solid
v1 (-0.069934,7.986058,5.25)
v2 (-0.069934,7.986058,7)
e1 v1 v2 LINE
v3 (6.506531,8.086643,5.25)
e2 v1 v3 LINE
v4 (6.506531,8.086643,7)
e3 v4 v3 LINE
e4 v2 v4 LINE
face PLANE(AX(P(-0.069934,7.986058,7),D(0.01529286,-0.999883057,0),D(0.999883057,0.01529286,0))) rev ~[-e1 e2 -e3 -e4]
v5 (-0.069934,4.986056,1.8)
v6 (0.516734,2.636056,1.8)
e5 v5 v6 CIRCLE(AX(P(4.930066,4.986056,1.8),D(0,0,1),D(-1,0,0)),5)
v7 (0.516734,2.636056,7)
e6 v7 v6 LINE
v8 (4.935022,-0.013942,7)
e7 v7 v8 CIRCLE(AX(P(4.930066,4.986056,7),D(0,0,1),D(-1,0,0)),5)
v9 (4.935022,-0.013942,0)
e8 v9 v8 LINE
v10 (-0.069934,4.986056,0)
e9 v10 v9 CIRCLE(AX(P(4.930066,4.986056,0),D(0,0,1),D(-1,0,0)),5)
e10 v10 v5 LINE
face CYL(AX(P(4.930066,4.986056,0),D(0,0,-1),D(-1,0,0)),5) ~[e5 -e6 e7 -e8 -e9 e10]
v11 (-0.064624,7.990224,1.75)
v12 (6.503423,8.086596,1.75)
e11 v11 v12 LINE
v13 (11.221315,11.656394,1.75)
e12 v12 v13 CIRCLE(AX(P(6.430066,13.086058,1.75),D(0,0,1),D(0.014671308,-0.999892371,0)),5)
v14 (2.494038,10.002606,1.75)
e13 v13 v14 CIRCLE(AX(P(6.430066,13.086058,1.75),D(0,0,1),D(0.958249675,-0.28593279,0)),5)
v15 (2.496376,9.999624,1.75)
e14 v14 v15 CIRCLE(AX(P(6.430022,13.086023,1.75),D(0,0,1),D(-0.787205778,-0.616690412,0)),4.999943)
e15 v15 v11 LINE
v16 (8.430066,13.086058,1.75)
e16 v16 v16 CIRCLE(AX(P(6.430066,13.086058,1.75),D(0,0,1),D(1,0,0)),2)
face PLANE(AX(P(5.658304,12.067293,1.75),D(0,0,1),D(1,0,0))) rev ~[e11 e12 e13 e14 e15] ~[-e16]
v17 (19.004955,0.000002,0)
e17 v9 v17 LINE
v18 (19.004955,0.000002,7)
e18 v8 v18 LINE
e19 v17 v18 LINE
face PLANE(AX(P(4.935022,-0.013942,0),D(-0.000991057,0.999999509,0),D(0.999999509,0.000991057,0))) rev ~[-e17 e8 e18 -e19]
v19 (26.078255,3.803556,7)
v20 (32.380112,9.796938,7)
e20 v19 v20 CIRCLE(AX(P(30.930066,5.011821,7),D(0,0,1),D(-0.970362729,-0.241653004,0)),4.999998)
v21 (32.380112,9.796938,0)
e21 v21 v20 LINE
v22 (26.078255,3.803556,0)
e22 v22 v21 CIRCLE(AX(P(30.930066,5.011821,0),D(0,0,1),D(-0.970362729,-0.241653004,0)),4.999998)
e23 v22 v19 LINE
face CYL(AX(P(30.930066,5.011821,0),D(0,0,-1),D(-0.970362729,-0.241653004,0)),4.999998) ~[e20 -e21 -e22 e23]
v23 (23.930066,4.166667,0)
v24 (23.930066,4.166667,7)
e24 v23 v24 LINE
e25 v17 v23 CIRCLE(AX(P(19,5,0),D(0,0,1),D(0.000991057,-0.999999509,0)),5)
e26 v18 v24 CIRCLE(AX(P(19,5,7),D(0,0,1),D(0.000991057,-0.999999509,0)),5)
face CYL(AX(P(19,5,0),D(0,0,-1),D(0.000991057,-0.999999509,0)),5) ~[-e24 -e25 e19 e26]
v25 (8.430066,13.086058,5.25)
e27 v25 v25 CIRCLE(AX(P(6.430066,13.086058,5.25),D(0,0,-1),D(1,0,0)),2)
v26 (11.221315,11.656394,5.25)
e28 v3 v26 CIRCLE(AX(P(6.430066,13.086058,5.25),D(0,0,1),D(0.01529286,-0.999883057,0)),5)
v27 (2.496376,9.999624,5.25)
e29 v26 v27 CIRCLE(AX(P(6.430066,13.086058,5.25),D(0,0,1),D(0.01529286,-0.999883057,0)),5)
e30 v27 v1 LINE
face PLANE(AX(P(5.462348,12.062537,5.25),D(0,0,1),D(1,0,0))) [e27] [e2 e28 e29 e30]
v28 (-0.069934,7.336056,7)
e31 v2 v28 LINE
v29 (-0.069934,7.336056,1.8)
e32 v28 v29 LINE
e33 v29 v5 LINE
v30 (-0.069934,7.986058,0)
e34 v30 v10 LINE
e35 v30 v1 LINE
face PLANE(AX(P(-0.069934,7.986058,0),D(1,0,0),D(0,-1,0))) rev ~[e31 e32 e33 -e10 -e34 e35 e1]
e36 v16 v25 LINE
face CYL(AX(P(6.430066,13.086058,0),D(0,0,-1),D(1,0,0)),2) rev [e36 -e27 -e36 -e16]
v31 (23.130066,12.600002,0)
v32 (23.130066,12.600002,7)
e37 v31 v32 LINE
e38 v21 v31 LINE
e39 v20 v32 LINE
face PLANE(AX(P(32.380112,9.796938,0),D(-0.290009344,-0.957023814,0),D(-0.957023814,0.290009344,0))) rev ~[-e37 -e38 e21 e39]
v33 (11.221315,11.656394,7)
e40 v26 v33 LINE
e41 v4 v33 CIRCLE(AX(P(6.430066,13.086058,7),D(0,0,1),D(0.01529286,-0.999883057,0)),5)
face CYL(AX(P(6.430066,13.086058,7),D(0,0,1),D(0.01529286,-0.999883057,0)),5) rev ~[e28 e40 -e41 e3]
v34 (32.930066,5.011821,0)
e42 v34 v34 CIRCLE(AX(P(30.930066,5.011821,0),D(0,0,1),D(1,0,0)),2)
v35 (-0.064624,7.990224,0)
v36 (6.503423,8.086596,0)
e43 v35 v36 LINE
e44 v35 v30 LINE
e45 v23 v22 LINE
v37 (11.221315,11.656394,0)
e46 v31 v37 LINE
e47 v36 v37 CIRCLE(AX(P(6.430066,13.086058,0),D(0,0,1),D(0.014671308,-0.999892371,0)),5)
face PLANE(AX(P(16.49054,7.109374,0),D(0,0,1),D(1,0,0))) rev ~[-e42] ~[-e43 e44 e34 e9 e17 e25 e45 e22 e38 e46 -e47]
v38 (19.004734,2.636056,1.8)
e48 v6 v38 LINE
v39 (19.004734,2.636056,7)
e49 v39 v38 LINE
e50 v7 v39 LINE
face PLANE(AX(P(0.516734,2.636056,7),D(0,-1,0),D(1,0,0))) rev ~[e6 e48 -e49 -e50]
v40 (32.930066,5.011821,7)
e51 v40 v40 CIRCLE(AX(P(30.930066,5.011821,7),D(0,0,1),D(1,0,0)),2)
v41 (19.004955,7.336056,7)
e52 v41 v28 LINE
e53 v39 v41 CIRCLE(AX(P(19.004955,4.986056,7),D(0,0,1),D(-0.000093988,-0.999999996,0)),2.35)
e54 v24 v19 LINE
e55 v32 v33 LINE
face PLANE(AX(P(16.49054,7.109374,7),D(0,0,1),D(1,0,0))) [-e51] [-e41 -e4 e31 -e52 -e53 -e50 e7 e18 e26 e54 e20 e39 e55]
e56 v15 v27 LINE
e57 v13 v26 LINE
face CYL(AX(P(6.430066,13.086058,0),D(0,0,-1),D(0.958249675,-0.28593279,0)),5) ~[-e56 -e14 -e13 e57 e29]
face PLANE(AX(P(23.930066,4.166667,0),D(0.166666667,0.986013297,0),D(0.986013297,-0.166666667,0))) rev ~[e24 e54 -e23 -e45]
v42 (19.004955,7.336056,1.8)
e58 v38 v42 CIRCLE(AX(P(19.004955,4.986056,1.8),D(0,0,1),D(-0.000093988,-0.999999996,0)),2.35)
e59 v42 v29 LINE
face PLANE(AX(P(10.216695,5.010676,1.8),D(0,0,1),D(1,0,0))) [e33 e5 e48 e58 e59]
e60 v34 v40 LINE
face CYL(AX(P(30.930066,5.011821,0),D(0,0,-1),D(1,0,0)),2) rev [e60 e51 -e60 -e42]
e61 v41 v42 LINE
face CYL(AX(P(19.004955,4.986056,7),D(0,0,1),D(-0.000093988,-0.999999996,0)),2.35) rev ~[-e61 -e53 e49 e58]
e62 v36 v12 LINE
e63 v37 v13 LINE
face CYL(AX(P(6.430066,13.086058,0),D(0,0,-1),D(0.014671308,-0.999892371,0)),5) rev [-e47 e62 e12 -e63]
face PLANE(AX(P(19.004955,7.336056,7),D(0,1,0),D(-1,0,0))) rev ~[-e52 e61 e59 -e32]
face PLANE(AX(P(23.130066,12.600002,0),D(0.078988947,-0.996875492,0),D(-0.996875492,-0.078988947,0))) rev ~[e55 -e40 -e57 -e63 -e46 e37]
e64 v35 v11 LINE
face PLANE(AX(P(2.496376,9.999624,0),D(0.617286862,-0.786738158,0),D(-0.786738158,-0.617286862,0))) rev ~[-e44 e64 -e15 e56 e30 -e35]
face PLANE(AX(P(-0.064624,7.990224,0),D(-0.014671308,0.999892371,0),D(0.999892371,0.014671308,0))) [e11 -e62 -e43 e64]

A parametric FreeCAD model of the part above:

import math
import FreeCAD as App
import Part
import Sketcher

V = App.Vector

doc = App.newDocument("Part")
body = doc.addObject("PartDesign::Body", "Body")

sketch1 = doc.addObject("Sketcher::SketchObject", "Sketch")
body.addObject(sketch1)
sketch1.AttachmentSupport = (doc.XY_Plane, [""])
sketch1.MapMode = "FlatFace"
sketch1.addGeometry(Part.LineSegment(V(4.935022, -0.013942, 0), V(19.004955, 0.000002, 0)), False)
sketch1.addGeometry(Part.ArcOfCircle(Part.Circle(V(19, 5, 0), V(0, 0, 1), 5), math.radians(-89.943217), math.radians(-9.594068)), False)
sketch1.addGeometry(Part.LineSegment(V(23.930066, 4.166667, 0), V(26.078255, 3.803556, 0)), False)
sketch1.addGeometry(Part.ArcOfCircle(Part.Circle(V(30.930066, 5.011821, 0), V(0, 0, 1), 4.999998), math.radians(-166.015877), math.radians(73.141485)), False)
sketch1.addGeometry(Part.LineSegment(V(32.380112, 9.796938, 0), V(23.130066, 12.600002, 0)), False)
sketch1.addGeometry(Part.LineSegment(V(23.130066, 12.600002, 0), V(11.221315, 11.656394, 0)), False)
sketch1.addGeometry(Part.ArcOfCircle(Part.Circle(V(6.430066, 13.086058, 0), V(0, 0, 1), 5), math.radians(-16.614614), math.radians(218.118276)), False)
sketch1.addGeometry(Part.LineSegment(V(2.496376, 9.999624, 0), V(-0.069934, 7.986058, 0)), False)
sketch1.addGeometry(Part.LineSegment(V(-0.069934, 7.986058, 0), V(-0.069934, 4.986056, 0)), False)
sketch1.addGeometry(Part.ArcOfCircle(Part.Circle(V(4.930066, 4.986056, 0), V(0, 0, 1), 5), math.radians(180), math.radians(270.056783)), False)
sketch1.addGeometry(Part.Circle(V(30.930066, 5.011821, 0), V(0, 0, 1), 2), False)
sketch1.addGeometry(Part.Circle(V(6.430066, 13.086058, 0), V(0, 0, 1), 2), False)
sketch1.addConstraint(Sketcher.Constraint("Tangent", 0, 2, 1, 1))
sketch1.addConstraint(Sketcher.Constraint("Coincident", 1, 2, 2, 1))
sketch1.addConstraint(Sketcher.Constraint("Coincident", 2, 2, 3, 1))
sketch1.addConstraint(Sketcher.Constraint("Tangent", 3, 2, 4, 1))
sketch1.addConstraint(Sketcher.Constraint("Coincident", 4, 2, 5, 1))
sketch1.addConstraint(Sketcher.Constraint("Coincident", 5, 2, 6, 1))
sketch1.addConstraint(Sketcher.Constraint("Coincident", 6, 2, 7, 1))
sketch1.addConstraint(Sketcher.Constraint("Coincident", 7, 2, 8, 1))
sketch1.addConstraint(Sketcher.Constraint("Tangent", 8, 2, 9, 1))
sketch1.addConstraint(Sketcher.Constraint("Tangent", 9, 2, 0, 1))
sketch1.addConstraint(Sketcher.Constraint("Vertical", 8))
sketch1.addConstraint(Sketcher.Constraint("Coincident", 10, 3, 3, 3))
sketch1.addConstraint(Sketcher.Constraint("Coincident", 11, 3, 6, 3))
sketch1.addConstraint(Sketcher.Constraint("Equal", 1, 6))
sketch1.addConstraint(Sketcher.Constraint("Equal", 6, 9))
sketch1.addConstraint(Sketcher.Constraint("Equal", 10, 11))
sketch1.addConstraint(Sketcher.Constraint("Diameter", 10, 4.0))
sketch1.addConstraint(Sketcher.Constraint("Radius", 1, 5.0))
sketch1.addConstraint(Sketcher.Constraint("DistanceX", -1, 1, 1, 3, 19.0))
sketch1.addConstraint(Sketcher.Constraint("DistanceY", -1, 1, 1, 3, 5.0))
sketch1.addConstraint(Sketcher.Constraint("DistanceX", 9, 3, 3, 3, 26.0))
sketch1.addConstraint(Sketcher.Constraint("DistanceX", 1, 2, 3, 3, 7.0))
sketch1.addConstraint(Sketcher.Constraint("DistanceY", 9, 2, 7, 2, 8.0))
sketch1.addConstraint(Sketcher.Constraint("DistanceX", 6, 3, 3, 3, 24.5))
sketch1.addConstraint(Sketcher.Constraint("DistanceX", 4, 2, 1, 2, 0.8))
sketch1.addConstraint(Sketcher.Constraint("DistanceY", 7, 2, 6, 3, 5.1))
sketch1.addConstraint(Sketcher.Constraint("Radius", 3, 4.999998))
sketch1.addConstraint(Sketcher.Constraint("DistanceX", 0, 2, 2, 2, 7.0733))
sketch1.addConstraint(Sketcher.Constraint("Distance", 0, 14.06994))
sketch1.addConstraint(Sketcher.Constraint("Distance", 2, 2.178661))
sketch1.addConstraint(Sketcher.Constraint("Distance", 4, 9.665429))
sketch1.addConstraint(Sketcher.Constraint("DistanceY", -1, 1, 3, 3, 5.011821))
sketch1.addConstraint(Sketcher.Constraint("DistanceX", 6, 3, 5, 2, 4.791248))
sketch1.addConstraint(Sketcher.Constraint("DistanceX", 6, 2, 6, 3, 3.933691))
pad1 = doc.addObject("PartDesign::Pad", "Pad")
body.addObject(pad1)
pad1.Profile = sketch1
pad1.Length = 7

sketch2 = doc.addObject("Sketcher::SketchObject", "Sketch001")
body.addObject(sketch2)
sketch2.AttachmentSupport = (doc.XY_Plane, [""])
sketch2.MapMode = "FlatFace"
sketch2.AttachmentOffset = App.Placement(V(0, 0, 7), App.Rotation())
sketch2.addGeometry(Part.LineSegment(V(19.004955, 7.336056, 0), V(-0.069934, 7.336056, 0)), False)
sketch2.addGeometry(Part.LineSegment(V(-0.069934, 7.336056, 0), V(-0.069934, 4.986056, 0)), False)
sketch2.addGeometry(Part.ArcOfCircle(Part.Circle(V(4.930066, 4.986056, 0), V(0, 0, 1), 5), math.radians(180), math.radians(208.034297)), False)
sketch2.addGeometry(Part.LineSegment(V(0.516734, 2.636056, 0), V(19.004734, 2.636056, 0)), False)
sketch2.addGeometry(Part.ArcOfCircle(Part.Circle(V(19.004955, 4.986056, 0), V(0, 0, 1), 2.35), math.radians(-90.005385), math.radians(90)), False)
sketch2.addConstraint(Sketcher.Constraint("Coincident", 0, 2, 1, 1))
sketch2.addConstraint(Sketcher.Constraint("Tangent", 1, 2, 2, 1))
sketch2.addConstraint(Sketcher.Constraint("Coincident", 2, 2, 3, 1))
sketch2.addConstraint(Sketcher.Constraint("Coincident", 3, 2, 4, 1))
sketch2.addConstraint(Sketcher.Constraint("Tangent", 4, 2, 0, 1))
sketch2.addConstraint(Sketcher.Constraint("Horizontal", 0))
sketch2.addConstraint(Sketcher.Constraint("Vertical", 1))
sketch2.addConstraint(Sketcher.Constraint("Horizontal", 3))
sketch2.addConstraint(Sketcher.Constraint("Horizontal", 2, 3, 4, 3))
sketch2.addConstraint(Sketcher.Constraint("Radius", 2, 5.0))
sketch2.addConstraint(Sketcher.Constraint("Radius", 4, 2.35))
sketch2.addConstraint(Sketcher.Constraint("DistanceX", 3, 1, 3, 2, 18.488))
sketch2.addConstraint(Sketcher.Constraint("DistanceX", 0, 2, 0, 1, 19.074889))
sketch2.addConstraint(Sketcher.Constraint("DistanceX", -1, 1, 2, 3, 4.930066))
sketch2.addConstraint(Sketcher.Constraint("DistanceY", -1, 1, 2, 3, 4.986056))
pocket1 = doc.addObject("PartDesign::Pocket", "Pocket")
body.addObject(pocket1)
pocket1.Profile = sketch2
pocket1.Length = 5.2

sketch3 = doc.addObject("Sketcher::SketchObject", "Sketch002")
body.addObject(sketch3)
sketch3.AttachmentSupport = (doc.XY_Plane, [""])
sketch3.MapMode = "FlatFace"
sketch3.addGeometry(Part.LineSegment(V(-0.064624, 7.990224, 0), V(6.503423, 8.086596, 0)), False)
sketch3.addGeometry(Part.ArcOfCircle(Part.Circle(V(6.430066, 13.086058, 0), V(0, 0, 1), 5), math.radians(-89.159366), math.radians(-16.614614)), False)
sketch3.addGeometry(Part.ArcOfCircle(Part.Circle(V(6.430066, 13.086058, 0), V(0, 0, 1), 5), math.radians(-16.614614), math.radians(218.074851)), False)
sketch3.addGeometry(Part.ArcOfCircle(Part.Circle(V(6.430022, 13.086023, 0), V(0, 0, 1), 4.999943), math.radians(-141.925148), math.radians(-141.881723)), False)
sketch3.addGeometry(Part.LineSegment(V(2.496376, 9.999624, 0), V(-0.064624, 7.990224, 0)), False)
sketch3.addGeometry(Part.Circle(V(6.430066, 13.086058, 0), V(0, 0, 1), 2), False)
sketch3.addConstraint(Sketcher.Constraint("Tangent", 0, 2, 1, 1))
sketch3.addConstraint(Sketcher.Constraint("Tangent", 1, 2, 2, 1))
sketch3.addConstraint(Sketcher.Constraint("Tangent", 2, 2, 3, 1))
sketch3.addConstraint(Sketcher.Constraint("Coincident", 3, 2, 4, 1))
sketch3.addConstraint(Sketcher.Constraint("Coincident", 4, 2, 0, 1))
sketch3.addConstraint(Sketcher.Constraint("Coincident", 5, 3, 1, 3))
sketch3.addConstraint(Sketcher.Constraint("Equal", 1, 2))
sketch3.addConstraint(Sketcher.Constraint("Diameter", 5, 4.0))
sketch3.addConstraint(Sketcher.Constraint("Radius", 1, 5.0))
sketch3.addConstraint(Sketcher.Constraint("Radius", 3, 4.999943))
sketch3.addConstraint(Sketcher.Constraint("DistanceX", 4, 2, 3, 2, 2.561))
sketch3.addConstraint(Sketcher.Constraint("DistanceX", 3, 3, 0, 2, 0.073401))
sketch3.addConstraint(Sketcher.Constraint("DistanceY", 3, 2, 3, 3, 3.086399))
sketch3.addConstraint(Sketcher.Constraint("DistanceY", -1, 1, 1, 3, 13.086058))
sketch3.addConstraint(Sketcher.Constraint("DistanceX", -1, 1, 3, 3, 6.430022))
sketch3.addConstraint(Sketcher.Constraint("DistanceX", 1, 3, 1, 2, 4.791248))
sketch3.addConstraint(Sketcher.Constraint("DistanceY", 0, 2, 2, 2, 1.91601))
pocket2 = doc.addObject("PartDesign::Pocket", "Pocket001")
body.addObject(pocket2)
pocket2.Profile = sketch3
pocket2.Length = 1.75
pocket2.Reversed = True

sketch4 = doc.addObject("Sketcher::SketchObject", "Sketch003")
body.addObject(sketch4)
sketch4.AttachmentSupport = (doc.XY_Plane, [""])
sketch4.MapMode = "FlatFace"
sketch4.AttachmentOffset = App.Placement(V(0, 0, 7), App.Rotation())
sketch4.addGeometry(Part.LineSegment(V(-0.069934, 7.986058, 0), V(6.506531, 8.086643, 0)), False)
sketch4.addGeometry(Part.ArcOfCircle(Part.Circle(V(6.430066, 13.086058, 0), V(0, 0, 1), 5), math.radians(-89.123749), math.radians(218.118276)), False)
sketch4.addGeometry(Part.LineSegment(V(2.496376, 9.999624, 0), V(-0.069934, 7.986058, 0)), False)
sketch4.addConstraint(Sketcher.Constraint("Tangent", 0, 2, 1, 1))
sketch4.addConstraint(Sketcher.Constraint("Coincident", 1, 2, 2, 1))
sketch4.addConstraint(Sketcher.Constraint("Coincident", 2, 2, 0, 1))
sketch4.addConstraint(Sketcher.Constraint("Radius", 1, 5.0))
sketch4.addConstraint(Sketcher.Constraint("DistanceX", 2, 2, 1, 3, 6.5))
sketch4.addConstraint(Sketcher.Constraint("DistanceY", 2, 2, 1, 3, 5.1))
sketch4.addConstraint(Sketcher.Constraint("DistanceY", -1, 1, 1, 3, 13.086058))
sketch4.addConstraint(Sketcher.Constraint("DistanceX", -1, 1, 0, 2, 6.506531))
sketch4.addConstraint(Sketcher.Constraint("DistanceY", 0, 2, 1, 2, 1.912981))
pocket3 = doc.addObject("PartDesign::Pocket", "Pocket002")
body.addObject(pocket3)
pocket3.Profile = sketch4
pocket3.Length = 1.75

doc.recompute()
